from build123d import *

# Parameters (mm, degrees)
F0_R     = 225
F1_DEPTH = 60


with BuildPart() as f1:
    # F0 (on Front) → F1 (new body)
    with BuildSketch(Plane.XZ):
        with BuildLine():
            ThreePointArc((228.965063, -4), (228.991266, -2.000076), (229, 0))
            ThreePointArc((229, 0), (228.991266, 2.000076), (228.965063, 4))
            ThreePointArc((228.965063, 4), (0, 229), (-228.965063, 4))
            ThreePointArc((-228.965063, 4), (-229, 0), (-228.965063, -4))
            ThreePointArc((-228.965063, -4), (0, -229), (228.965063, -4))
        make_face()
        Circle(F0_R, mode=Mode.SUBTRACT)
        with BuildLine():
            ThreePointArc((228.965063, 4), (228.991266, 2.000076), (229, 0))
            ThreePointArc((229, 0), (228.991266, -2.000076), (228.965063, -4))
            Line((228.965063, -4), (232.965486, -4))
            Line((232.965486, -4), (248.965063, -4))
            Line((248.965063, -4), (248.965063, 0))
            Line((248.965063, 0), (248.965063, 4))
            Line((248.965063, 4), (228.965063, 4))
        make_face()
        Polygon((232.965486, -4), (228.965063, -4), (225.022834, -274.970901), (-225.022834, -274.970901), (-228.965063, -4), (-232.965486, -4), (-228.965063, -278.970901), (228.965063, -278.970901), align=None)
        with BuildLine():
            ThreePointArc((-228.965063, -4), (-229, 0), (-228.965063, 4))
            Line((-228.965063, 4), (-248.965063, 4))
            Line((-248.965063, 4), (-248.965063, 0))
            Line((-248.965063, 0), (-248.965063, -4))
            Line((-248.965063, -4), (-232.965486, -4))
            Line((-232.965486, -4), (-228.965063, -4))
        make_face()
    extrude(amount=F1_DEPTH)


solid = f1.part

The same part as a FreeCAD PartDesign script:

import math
import FreeCAD as App
import Part
import Sketcher

V = App.Vector

doc = App.newDocument("Part")
body = doc.addObject("PartDesign::Body", "Body")

sketch1 = body.newObject("Sketcher::SketchObject", "Sketch")
sketch1.AttachmentSupport = (doc.getObject("XZ_Plane"), [""])
sketch1.MapMode = "FlatFace"
sketch1.addGeometry(Part.ArcOfCircle(Part.Circle(V(0, 0, 0), V(0, 0, 1), 229), math.radians(1), math.radians(179)), False)
sketch1.addGeometry(Part.LineSegment(V(-229, 4, 0), V(-249, 4, 0)), False)
sketch1.addGeometry(Part.LineSegment(V(-249, 4, 0), V(-249, -4, 0)), False)
sketch1.addGeometry(Part.LineSegment(V(-249, -4, 0), V(-233, -4, 0)), False)
sketch1.addGeometry(Part.LineSegment(V(-233, -4, 0), V(-229, -279, 0)), False)
sketch1.addGeometry(Part.LineSegment(V(-229, -279, 0), V(229, -279, 0)), False)
sketch1.addGeometry(Part.LineSegment(V(229, -279, 0), V(233, -4, 0)), False)
sketch1.addGeometry(Part.LineSegment(V(233, -4, 0), V(249, -4, 0)), False)
sketch1.addGeometry(Part.LineSegment(V(249, -4, 0), V(249, 4, 0)), False)
sketch1.addGeometry(Part.LineSegment(V(249, 4, 0), V(229, 4, 0)), False)
sketch1.addGeometry(Part.LineSegment(V(-225, -275, 0), V(-229, -4, 0)), False)
sketch1.addGeometry(Part.ArcOfCircle(Part.Circle(V(0, 0, 0), V(0, 0, 1), 229), math.radians(-179), math.radians(-1)), False)
sketch1.addGeometry(Part.LineSegment(V(229, -4, 0), V(225, -275, 0)), False)
sketch1.addGeometry(Part.LineSegment(V(225, -275, 0), V(-225, -275, 0)), False)
sketch1.addGeometry(Part.Circle(V(0, 0, 0), V(0, 0, 1), 225), False)
sketch1.addConstraint(Sketcher.Constraint("Coincident", 0, 2, 1, 1))
sketch1.addConstraint(Sketcher.Constraint("Coincident", 1, 2, 2, 1))
sketch1.addConstraint(Sketcher.Constraint("Coincident", 2, 2, 3, 1))
sketch1.addConstraint(Sketcher.Constraint("Coincident", 3, 2, 4, 1))
sketch1.addConstraint(Sketcher.Constraint("Coincident", 4, 2, 5, 1))
sketch1.addConstraint(Sketcher.Constraint("Coincident", 5, 2, 6, 1))
sketch1.addConstraint(Sketcher.Constraint("Coincident", 6, 2, 7, 1))
sketch1.addConstraint(Sketcher.Constraint("Coincident", 7, 2, 8, 1))
sketch1.addConstraint(Sketcher.Constraint("Coincident", 8, 2, 9, 1))
sketch1.addConstraint(Sketcher.Constraint("Coincident", 9, 2, 0, 1))
sketch1.addConstraint(Sketcher.Constraint("Coincident", 10, 2, 11, 1))
sketch1.addConstraint(Sketcher.Constraint("Coincident", 11, 2, 12, 1))
sketch1.addConstraint(Sketcher.Constraint("Coincident", 12, 2, 13, 1))
sketch1.addConstraint(Sketcher.Constraint("Coincident", 13, 2, 10, 1))
sketch1.addConstraint(Sketcher.Constraint("Horizontal", 1))
sketch1.addConstraint(Sketcher.Constraint("Vertical", 2))
sketch1.addConstraint(Sketcher.Constraint("Horizontal", 3))
sketch1.addConstraint(Sketcher.Constraint("Horizontal", 5))
sketch1.addConstraint(Sketcher.Constraint("Horizontal", 7))
sketch1.addConstraint(Sketcher.Constraint("Vertical", 8))
sketch1.addConstraint(Sketcher.Constraint("Horizontal", 9))
sketch1.addConstraint(Sketcher.Constraint("Horizontal", 13))
sketch1.addConstraint(Sketcher.Constraint("Coincident", 0, 3, -1, 1))
sketch1.addConstraint(Sketcher.Constraint("Coincident", 11, 3, -1, 1))
sketch1.addConstraint(Sketcher.Constraint("Coincident", 14, 3, -1, 1))
sketch1.addConstraint(Sketcher.Constraint("Equal", 0, 11))
sketch1.addConstraint(Sketcher.Constraint("Symmetric", 1, 2, 7, 2, -1, 1))
sketch1.addConstraint(Sketcher.Constraint("Symmetric", 3, 2, 6, 2, -2))
sketch1.addConstraint(Sketcher.Constraint("Parallel", 4, 10))
sketch1.addConstraint(Sketcher.Constraint("Parallel", 6, 12))
sketch1.addConstraint(Sketcher.Constraint("Horizontal", 1, 2, 8, 2))
sketch1.addConstraint(Sketcher.Constraint("Horizontal", 7, 2, 10, 2))
sketch1.addConstraint(Sketcher.Constraint("Horizontal", 10, 2, 11, 2))
sketch1.addConstraint(Sketcher.Constraint("Vertical", 0, 2, 4, 2))
sketch1.addConstraint(Sketcher.Constraint("Vertical", 5, 2, 9, 2))
sketch1.addConstraint(Sketcher.Constraint("Diameter", 14, 450.0))
sketch1.addConstraint(Sketcher.Constraint("Radius", 0, 229.0))
sketch1.addConstraint(Sketcher.Constraint("DistanceX", 1, 2, 1, 1, 20.0))
sketch1.addConstraint(Sketcher.Constraint("DistanceY", 2, 2, 2, 1, 8.0))
sketch1.addConstraint(Sketcher.Constraint("Distance", 4, 275.0))
sketch1.addConstraint(Sketcher.Constraint("DistanceY", 5, 2, 12, 2, 4.0))
sketch1.addConstraint(Sketcher.Constraint("DistanceX", 13, 2, 13, 1, 450.045668))
pad1 = body.newObject("PartDesign::Pad", "Pad")
pad1.Profile = sketch1
pad1.Length = 60

doc.recompute()
